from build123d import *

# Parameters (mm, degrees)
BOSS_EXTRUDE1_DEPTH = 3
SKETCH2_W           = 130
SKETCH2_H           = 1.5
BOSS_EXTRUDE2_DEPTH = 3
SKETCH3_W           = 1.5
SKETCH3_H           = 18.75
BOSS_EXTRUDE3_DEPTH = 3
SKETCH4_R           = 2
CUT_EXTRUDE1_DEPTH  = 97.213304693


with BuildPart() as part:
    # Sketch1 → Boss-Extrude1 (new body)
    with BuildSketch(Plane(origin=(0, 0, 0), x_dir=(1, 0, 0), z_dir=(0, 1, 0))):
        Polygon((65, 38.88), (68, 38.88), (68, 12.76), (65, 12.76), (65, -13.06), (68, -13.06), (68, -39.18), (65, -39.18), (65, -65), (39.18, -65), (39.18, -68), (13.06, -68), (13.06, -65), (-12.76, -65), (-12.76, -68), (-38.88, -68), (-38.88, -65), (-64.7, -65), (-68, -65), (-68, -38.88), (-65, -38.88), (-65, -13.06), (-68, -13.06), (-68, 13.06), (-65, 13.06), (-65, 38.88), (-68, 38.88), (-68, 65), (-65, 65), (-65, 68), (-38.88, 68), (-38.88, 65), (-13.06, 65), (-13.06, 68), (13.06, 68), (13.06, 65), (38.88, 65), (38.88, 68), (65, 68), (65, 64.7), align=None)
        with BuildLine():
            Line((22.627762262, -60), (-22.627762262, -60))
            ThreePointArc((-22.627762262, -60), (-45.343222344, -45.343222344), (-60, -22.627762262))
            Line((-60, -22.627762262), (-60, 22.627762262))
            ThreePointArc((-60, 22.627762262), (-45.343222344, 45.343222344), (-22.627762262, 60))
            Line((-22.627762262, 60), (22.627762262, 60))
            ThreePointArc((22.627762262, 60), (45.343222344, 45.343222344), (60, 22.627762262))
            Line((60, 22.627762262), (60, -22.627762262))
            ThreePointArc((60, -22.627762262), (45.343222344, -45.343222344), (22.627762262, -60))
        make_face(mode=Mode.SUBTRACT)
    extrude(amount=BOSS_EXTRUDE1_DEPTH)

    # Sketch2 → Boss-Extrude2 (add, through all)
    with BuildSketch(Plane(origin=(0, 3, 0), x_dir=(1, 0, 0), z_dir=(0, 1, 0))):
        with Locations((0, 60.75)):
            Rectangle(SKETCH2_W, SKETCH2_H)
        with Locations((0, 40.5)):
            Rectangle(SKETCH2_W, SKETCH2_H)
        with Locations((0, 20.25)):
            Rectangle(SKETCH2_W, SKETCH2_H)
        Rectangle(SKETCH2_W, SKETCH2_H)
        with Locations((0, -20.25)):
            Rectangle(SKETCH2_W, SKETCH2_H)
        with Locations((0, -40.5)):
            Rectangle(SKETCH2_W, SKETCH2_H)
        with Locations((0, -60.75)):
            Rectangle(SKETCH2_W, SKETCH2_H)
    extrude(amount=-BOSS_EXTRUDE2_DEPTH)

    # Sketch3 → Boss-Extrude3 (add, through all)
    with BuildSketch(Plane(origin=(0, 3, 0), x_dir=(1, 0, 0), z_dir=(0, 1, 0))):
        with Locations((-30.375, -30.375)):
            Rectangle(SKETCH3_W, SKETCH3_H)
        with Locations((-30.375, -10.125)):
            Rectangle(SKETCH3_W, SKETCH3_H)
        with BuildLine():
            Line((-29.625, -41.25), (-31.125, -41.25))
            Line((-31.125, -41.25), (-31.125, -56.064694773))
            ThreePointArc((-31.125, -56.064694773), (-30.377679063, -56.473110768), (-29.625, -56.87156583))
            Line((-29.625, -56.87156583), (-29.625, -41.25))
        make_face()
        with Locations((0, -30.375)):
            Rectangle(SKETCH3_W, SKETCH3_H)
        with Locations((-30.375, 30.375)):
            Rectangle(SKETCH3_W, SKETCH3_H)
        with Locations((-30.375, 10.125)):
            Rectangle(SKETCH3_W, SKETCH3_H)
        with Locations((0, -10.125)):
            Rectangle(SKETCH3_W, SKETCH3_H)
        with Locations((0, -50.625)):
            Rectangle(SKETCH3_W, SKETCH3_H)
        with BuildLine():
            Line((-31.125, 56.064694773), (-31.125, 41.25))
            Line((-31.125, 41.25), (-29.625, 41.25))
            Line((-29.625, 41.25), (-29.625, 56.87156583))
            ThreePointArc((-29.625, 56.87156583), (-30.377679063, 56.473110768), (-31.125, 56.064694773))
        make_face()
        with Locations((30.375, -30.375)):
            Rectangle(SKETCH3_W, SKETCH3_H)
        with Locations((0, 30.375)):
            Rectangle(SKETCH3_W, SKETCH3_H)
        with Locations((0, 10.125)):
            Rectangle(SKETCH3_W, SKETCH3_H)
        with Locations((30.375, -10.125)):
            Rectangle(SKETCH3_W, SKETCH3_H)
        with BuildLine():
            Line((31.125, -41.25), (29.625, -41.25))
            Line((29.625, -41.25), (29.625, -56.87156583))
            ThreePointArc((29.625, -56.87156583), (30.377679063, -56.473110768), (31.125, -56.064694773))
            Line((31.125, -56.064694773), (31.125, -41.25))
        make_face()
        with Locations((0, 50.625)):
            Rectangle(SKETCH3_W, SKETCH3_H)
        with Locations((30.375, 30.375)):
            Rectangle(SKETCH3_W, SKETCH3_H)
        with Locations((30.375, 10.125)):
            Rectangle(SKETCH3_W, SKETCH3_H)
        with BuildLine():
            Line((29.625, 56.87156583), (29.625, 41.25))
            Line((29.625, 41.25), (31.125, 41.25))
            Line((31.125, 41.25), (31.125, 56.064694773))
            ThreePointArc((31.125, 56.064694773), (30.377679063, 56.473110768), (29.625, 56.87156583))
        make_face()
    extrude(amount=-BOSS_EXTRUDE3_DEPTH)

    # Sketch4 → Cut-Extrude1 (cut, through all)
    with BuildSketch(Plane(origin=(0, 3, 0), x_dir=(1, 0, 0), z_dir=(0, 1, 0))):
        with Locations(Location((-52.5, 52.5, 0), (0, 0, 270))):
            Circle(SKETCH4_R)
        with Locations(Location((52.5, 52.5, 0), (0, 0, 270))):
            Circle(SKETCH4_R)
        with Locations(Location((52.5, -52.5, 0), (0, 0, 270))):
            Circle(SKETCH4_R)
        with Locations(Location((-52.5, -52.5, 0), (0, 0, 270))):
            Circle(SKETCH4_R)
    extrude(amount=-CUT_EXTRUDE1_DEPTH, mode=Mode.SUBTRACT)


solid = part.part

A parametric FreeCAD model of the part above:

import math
import FreeCAD as App
import Part
import Sketcher

V = App.Vector
Q = App.Units.Quantity


def add_polygon(sketch, points):
    """Adds a closed chain of lines whose ends are joined by coincident constraints."""
    first, n = sketch.GeometryCount, len(points)
    for a, b in zip(points, points[1:] + points[:1]):
        sketch.addGeometry(Part.LineSegment(App.Vector(*a, 0), App.Vector(*b, 0)), False)
    for i in range(n):
        sketch.addConstraint(Sketcher.Constraint("Coincident", first + i, 2, first + (i + 1) % n, 1))

doc = App.newDocument("Part")
body = doc.addObject("PartDesign::Body", "Body")

# Sketch on XZ plane
sketch1 = body.newObject("Sketcher::SketchObject", "Sketch")
sketch1.AttachmentSupport = (doc.getObject("XZ_Plane"), [""])
sketch1.MapMode = "FlatFace"
add_polygon(sketch1, [(68, -38.9), (65, -38.9), (65, -68), (38.9, -68), (38.9, -65), (13.1, -65), (13.1, -68), (-13.1, -68), (-13.1, -65), (-38.9, -65), (-38.9, -68), (-65, -68), (-65, -65), (-68, -65), (-68, -38.9), (-65, -38.9), (-65, -13.1), (-68, -13.1), (-68, 13.1), (-65, 13.1), (-65, 38.9), (-68, 38.9), (-68, 65), (-38.9, 65), (-38.9, 68), (-12.8, 68), (-12.8, 65), (13.1, 65), (13.1, 68), (39.2, 68), (39.2, 65), (65, 65), (65, 39.2), (68, 39.2), (68, 13.1), (65, 13.1), (65, -12.8), (68, -12.8)])  # lines 0-37
sketch1.addGeometry(Part.LineSegment(V(22.6, 60, 0), V(-22.6, 60, 0)), False)  # 38
sketch1.addGeometry(Part.ArcOfCircle(Part.Circle(V(0, 0, 0), V(0, 0, 1), 64.1), math.radians(111), math.radians(159)), False)  # 39
sketch1.addGeometry(Part.LineSegment(V(-60, 22.6, 0), V(-60, -22.6, 0)), False)  # 40
sketch1.addGeometry(Part.ArcOfCircle(Part.Circle(V(0, 0, 0), V(0, 0, 1), 64.1), math.radians(-159), math.radians(-111)), False)  # 41
sketch1.addGeometry(Part.LineSegment(V(-22.6, -60, 0), V(22.6, -60, 0)), False)  # 42
sketch1.addGeometry(Part.ArcOfCircle(Part.Circle(V(0, 0, 0), V(0, 0, 1), 64.1), math.radians(-69), math.radians(-21)), False)  # 43
sketch1.addGeometry(Part.LineSegment(V(60, -22.6, 0), V(60, 22.6, 0)), False)  # 44
sketch1.addGeometry(Part.ArcOfCircle(Part.Circle(V(0, 0, 0), V(0, 0, 1), 64.1), math.radians(21), math.radians(69)), False)  # 45
sketch1.addConstraint([
    Sketcher.Constraint("Coincident", 38, 2, 39, 1),
    Sketcher.Constraint("Coincident", 39, 2, 40, 1),
    Sketcher.Constraint("Coincident", 40, 2, 41, 1),
    Sketcher.Constraint("Coincident", 41, 2, 42, 1),
    Sketcher.Constraint("Coincident", 42, 2, 43, 1),
    Sketcher.Constraint("Coincident", 43, 2, 44, 1),
    Sketcher.Constraint("Coincident", 44, 2, 45, 1),
    Sketcher.Constraint("Coincident", 45, 2, 38, 1),
    Sketcher.Constraint("Horizontal", 0),
    Sketcher.Constraint("Vertical", 1),
    Sketcher.Constraint("Horizontal", 2),
    Sketcher.Constraint("Vertical", 3),
    Sketcher.Constraint("Horizontal", 4),
    Sketcher.Constraint("Vertical", 5),
    Sketcher.Constraint("Horizontal", 6),
    Sketcher.Constraint("Vertical", 7),
    Sketcher.Constraint("Horizontal", 8),
    Sketcher.Constraint("Vertical", 9),
    Sketcher.Constraint("Horizontal", 10),
    Sketcher.Constraint("Vertical", 11),
    Sketcher.Constraint("Horizontal", 12),
    Sketcher.Constraint("Vertical", 13),
    Sketcher.Constraint("Horizontal", 14),
    Sketcher.Constraint("Vertical", 15),
    Sketcher.Constraint("Horizontal", 16),
    Sketcher.Constraint("Vertical", 17),
    Sketcher.Constraint("Horizontal", 18),
    Sketcher.Constraint("Vertical", 19),
    Sketcher.Constraint("Horizontal", 20),
    Sketcher.Constraint("Vertical", 21),
    Sketcher.Constraint("Horizontal", 22),
    Sketcher.Constraint("Vertical", 23),
    Sketcher.Constraint("Horizontal", 24),
    Sketcher.Constraint("Vertical", 25),
    Sketcher.Constraint("Horizontal", 26),
    Sketcher.Constraint("Vertical", 27),
    Sketcher.Constraint("Horizontal", 28),
    Sketcher.Constraint("Vertical", 29),
    Sketcher.Constraint("Horizontal", 30),
    Sketcher.Constraint("Vertical", 31),
    Sketcher.Constraint("Horizontal", 32),
    Sketcher.Constraint("Vertical", 33),
    Sketcher.Constraint("Horizontal", 34),
    Sketcher.Constraint("Vertical", 35),
    Sketcher.Constraint("Horizontal", 36),
    Sketcher.Constraint("Vertical", 37),
    Sketcher.Constraint("Horizontal", 38),
    Sketcher.Constraint("Vertical", 40),
    Sketcher.Constraint("Horizontal", 42),
    Sketcher.Constraint("Vertical", 44),
    Sketcher.Constraint("Coincident", 39, 3, -1, 1),
    Sketcher.Constraint("Coincident", 41, 3, -1, 1),
    Sketcher.Constraint("Coincident", 43, 3, -1, 1),
    Sketcher.Constraint("Coincident", 45, 3, -1, 1),
    Sketcher.Constraint("Equal", 39, 41),
    Sketcher.Constraint("Equal", 41, 43),
    Sketcher.Constraint("Equal", 43, 45),
    Sketcher.Constraint("Symmetric", 0, 2, 19, 2, -1, 1),
    Sketcher.Constraint("Symmetric", 3, 2, 22, 2, -1, 1),
    Sketcher.Constraint("Symmetric", 7, 2, 26, 2, -1, 1),
    Sketcher.Constraint("Symmetric", 11, 2, 30, 2, -1, 1),
    Sketcher.Constraint("Symmetric", 16, 2, 33, 2, -1, 1),
    Sketcher.Constraint("Symmetric", 4, 2, 7, 2, -2),
    Sketcher.Constraint("Symmetric", 2, 2, 9, 2, -2),
    Sketcher.Constraint("Symmetric", 0, 2, 14, 2, -2),
    Sketcher.Constraint("Symmetric", 18, 2, 34, 2, -2),
    Sketcher.Constraint("Symmetric", 12, 2, 21, 2, -1),
    Sketcher.Constraint("Horizontal", 2, 2, 5, 2),
    Sketcher.Constraint("Horizontal", 24, 2, 27, 2),
    Sketcher.Constraint("Horizontal", 40, 2, 43, 2),
    Sketcher.Constraint("Vertical", 11, 2, 14, 2),
    Sketcher.Constraint("Vertical", 13, 2, 16, 2),
    Sketcher.Constraint("Vertical", 33, 2, 36, 2),
    Sketcher.Constraint("Vertical", 38, 2, 41, 2),
    Sketcher.Constraint("Equal", 2, 6),
    Sketcher.Constraint("Equal", 10, 24),
    Sketcher.Constraint("Equal", 24, 28),
    Sketcher.Constraint("Equal", 22, 1),
    Sketcher.Constraint("Equal", 36, 3),
    Sketcher.Constraint("Equal", 30, 15),
    Sketcher.Constraint("Equal", 13, 17),
    Sketcher.Constraint("Equal", 11, 23),
    Sketcher.Constraint("Equal", 19, 31),
    Sketcher.Constraint("Equal", 31, 35),
    Sketcher.Constraint("Equal", 42, 40),
    Sketcher.Constraint("DistanceX", 0, 2, 0, 1, Q("3 mm")),
    Sketcher.Constraint("DistanceX", -1, 1, 0, 2, Q("65 mm")),
    Sketcher.Constraint("DistanceY", -1, 1, 38, 2, Q("60 mm")),
    Sketcher.Constraint("Radius", 39, Q("64.125 mm")),
    Sketcher.Constraint("DistanceX", 2, 2, 2, 1, Q("26.12 mm")),
])
pad1 = body.newObject("PartDesign::Pad", "Pad")
pad1.Profile = sketch1
pad1.Length = 3
pad1.Reversed = True

# Sketch on XZ plane
sketch2 = body.newObject("Sketcher::SketchObject", "Sketch001")
sketch2.AttachmentSupport = (doc.getObject("XZ_Plane"), [""])
sketch2.MapMode = "FlatFace"
sketch2.AttachmentOffset = App.Placement(V(0, 0, -3), App.Rotation())
add_polygon(sketch2, [(-65, -61.5), (-65, -60), (65, -60), (65, -61.5)])  # lines 0-3
add_polygon(sketch2, [(-65, -41.2), (-65, -39.8), (65, -39.8), (65, -41.2)])  # lines 4-7
add_polygon(sketch2, [(-65, -21), (-65, -19.5), (65, -19.5), (65, -21)])  # lines 8-11
add_polygon(sketch2, [(-65, -0.8), (-65, 0.8), (65, 0.8), (65, -0.8)])  # lines 12-15
add_polygon(sketch2, [(-65, 19.5), (-65, 21), (65, 21), (65, 19.5)])  # lines 16-19
add_polygon(sketch2, [(-65, 39.8), (-65, 41.2), (65, 41.2), (65, 39.8)])  # lines 20-23
add_polygon(sketch2, [(-65, 60), (-65, 61.5), (65, 61.5), (65, 60)])  # lines 24-27
sketch2.addConstraint([
    Sketcher.Constraint("Vertical", 0),
    Sketcher.Constraint("Horizontal", 1),
    Sketcher.Constraint("Vertical", 2),
    Sketcher.Constraint("Horizontal", 3),
    Sketcher.Constraint("Vertical", 4),
    Sketcher.Constraint("Horizontal", 5),
    Sketcher.Constraint("Vertical", 6),
    Sketcher.Constraint("Horizontal", 7),
    Sketcher.Constraint("Vertical", 8),
    Sketcher.Constraint("Horizontal", 9),
    Sketcher.Constraint("Vertical", 10),
    Sketcher.Constraint("Horizontal", 11),
    Sketcher.Constraint("Vertical", 12),
    Sketcher.Constraint("Horizontal", 13),
    Sketcher.Constraint("Vertical", 14),
    Sketcher.Constraint("Horizontal", 15),
    Sketcher.Constraint("Vertical", 16),
    Sketcher.Constraint("Horizontal", 17),
    Sketcher.Constraint("Vertical", 18),
    Sketcher.Constraint("Horizontal", 19),
    Sketcher.Constraint("Vertical", 20),
    Sketcher.Constraint("Horizontal", 21),
    Sketcher.Constraint("Vertical", 22),
    Sketcher.Constraint("Horizontal", 23),
    Sketcher.Constraint("Vertical", 24),
    Sketcher.Constraint("Horizontal", 25),
    Sketcher.Constraint("Vertical", 26),
    Sketcher.Constraint("Horizontal", 27),
    Sketcher.Constraint("Symmetric", 12, 2, 14, 2, -1, 1),
    Sketcher.Constraint("Symmetric", 10, 2, 16, 2, -1, 1),
    Sketcher.Constraint("Symmetric", 8, 2, 18, 2, -1, 1),
    Sketcher.Constraint("Symmetric", 6, 2, 20, 2, -1, 1),
    Sketcher.Constraint("Symmetric", 4, 2, 22, 2, -1, 1),
    Sketcher.Constraint("Symmetric", 2, 2, 24, 2, -1, 1),
    Sketcher.Constraint("Symmetric", 0, 2, 26, 2, -1, 1),
    Sketcher.Constraint("Vertical", 3, 2, 4, 2),
    Sketcher.Constraint("Vertical", 2, 2, 5, 2),
    Sketcher.Constraint("Vertical", 7, 2, 8, 2),
    Sketcher.Constraint("Vertical", 6, 2, 9, 2),
    Sketcher.Constraint("Vertical", 11, 2, 12, 2),
    Sketcher.Constraint("Vertical", 10, 2, 13, 2),
    Sketcher.Constraint("Equal", 2, 4),
    Sketcher.Constraint("Equal", 6, 8),
    Sketcher.Constraint("Equal", 10, 12),
    Sketcher.Constraint("DistanceX", 1, 1, 1, 2, Q("130 mm")),
    Sketcher.Constraint("DistanceY", 0, 1, 0, 2, Q("1.5 mm")),
    Sketcher.Constraint("DistanceY", 0, 2, -1, 1, Q("60 mm")),
    Sketcher.Constraint("DistanceY", 10, 2, -1, 1, Q("21 mm")),
    Sketcher.Constraint("DistanceY", 7, 2, 12, 2, Q("42 mm")),
])
pad2 = body.newObject("PartDesign::Pad", "Pad001")
pad2.Profile = sketch2
pad2.Length = 3

# Sketch on XZ plane
sketch3 = body.newObject("Sketcher::SketchObject", "Sketch002")
sketch3.AttachmentSupport = (doc.getObject("XZ_Plane"), [""])
sketch3.MapMode = "FlatFace"
sketch3.AttachmentOffset = App.Placement(V(0, 0, -3), App.Rotation())
add_polygon(sketch3, [(-31.1, 21), (-31.1, 39.8), (-29.6, 39.8), (-29.6, 21)])  # lines 0-3
add_polygon(sketch3, [(-31.1, 0.8), (-31.1, 19.5), (-29.6, 19.5), (-29.6, 0.8)])  # lines 4-7
sketch3.addGeometry(Part.LineSegment(V(-29.6, 41.2, 0), V(-31.1, 41.2, 0)), False)  # 8
sketch3.addGeometry(Part.LineSegment(V(-31.1, 41.2, 0), V(-31.1, 56.1, 0)), False)  # 9
sketch3.addGeometry(Part.ArcOfCircle(Part.Circle(V(0, 0, 0), V(0, 0, 1), 64.1), math.radians(117.52), math.radians(119.04)), False)  # 10
sketch3.addGeometry(Part.LineSegment(V(-29.6, 56.9, 0), V(-29.6, 41.2, 0)), False)  # 11
add_polygon(sketch3, [(-0.8, 21), (-0.8, 39.8), (0.8, 39.8), (0.8, 21)])  # lines 12-15
add_polygon(sketch3, [(-31.1, -39.8), (-31.1, -21), (-29.6, -21), (-29.6, -39.8)])  # lines 16-19
add_polygon(sketch3, [(-31.1, -19.5), (-31.1, -0.8), (-29.6, -0.8), (-29.6, -19.5)])  # lines 20-23
add_polygon(sketch3, [(-0.8, 0.8), (-0.8, 19.5), (0.8, 19.5), (0.8, 0.8)])  # lines 24-27
add_polygon(sketch3, [(-0.8, 41.2), (-0.8, 60), (0.8, 60), (0.8, 41.2)])  # lines 28-31
sketch3.addGeometry(Part.LineSegment(V(-31.1, -56.1, 0), V(-31.1, -41.2, 0)), False)  # 32
sketch3.addGeometry(Part.LineSegment(V(-31.1, -41.2, 0), V(-29.6, -41.2, 0)), False)  # 33
sketch3.addGeometry(Part.LineSegment(V(-29.6, -41.2, 0), V(-29.6, -56.9, 0)), False)  # 34
sketch3.addGeometry(Part.ArcOfCircle(Part.Circle(V(0, 0, 0), V(0, 0, 1), 64.1), math.radians(-119.04), math.radians(-117.52)), False)  # 35
add_polygon(sketch3, [(29.6, 21), (29.6, 39.8), (31.1, 39.8), (31.1, 21)])  # lines 36-39
add_polygon(sketch3, [(-0.8, -39.8), (-0.8, -21), (0.8, -21), (0.8, -39.8)])  # lines 40-43
add_polygon(sketch3, [(-0.8, -19.5), (-0.8, -0.8), (0.8, -0.8), (0.8, -19.5)])  # lines 44-47
add_polygon(sketch3, [(29.6, 0.8), (29.6, 19.5), (31.1, 19.5), (31.1, 0.8)])  # lines 48-51
sketch3.addGeometry(Part.LineSegment(V(31.1, 41.2, 0), V(29.6, 41.2, 0)), False)  # 52
sketch3.addGeometry(Part.LineSegment(V(29.6, 41.2, 0), V(29.6, 56.9, 0)), False)  # 53
sketch3.addGeometry(Part.ArcOfCircle(Part.Circle(V(0, 0, 0), V(0, 0, 1), 64.1), math.radians(60.96), math.radians(62.48)), False)  # 54
sketch3.addGeometry(Part.LineSegment(V(31.1, 56.1, 0), V(31.1, 41.2, 0)), False)  # 55
add_polygon(sketch3, [(-0.8, -60), (-0.8, -41.2), (0.8, -41.2), (0.8, -60)])  # lines 56-59
add_polygon(sketch3, [(29.6, -39.8), (29.6, -21), (31.1, -21), (31.1, -39.8)])  # lines 60-63
add_polygon(sketch3, [(29.6, -19.5), (29.6, -0.8), (31.1, -0.8), (31.1, -19.5)])  # lines 64-67
sketch3.addGeometry(Part.LineSegment(V(29.6, -56.9, 0), V(29.6, -41.2, 0)), False)  # 68
sketch3.addGeometry(Part.LineSegment(V(29.6, -41.2, 0), V(31.1, -41.2, 0)), False)  # 69
sketch3.addGeometry(Part.LineSegment(V(31.1, -41.2, 0), V(31.1, -56.1, 0)), False)  # 70
sketch3.addGeometry(Part.ArcOfCircle(Part.Circle(V(0, 0, 0), V(0, 0, 1), 64.1), math.radians(-62.48), math.radians(-60.96)), False)  # 71
sketch3.addConstraint([
    Sketcher.Constraint("Coincident", 8, 2, 9, 1),
    Sketcher.Constraint("Coincident", 9, 2, 10, 2),
    Sketcher.Constraint("Coincident", 10, 1, 11, 1),
    Sketcher.Constraint("Coincident", 11, 2, 8, 1),
    Sketcher.Constraint("Coincident", 32, 2, 33, 1),
    Sketcher.Constraint("Coincident", 33, 2, 34, 1),
    Sketcher.Constraint("Coincident", 34, 2, 35, 2),
    Sketcher.Constraint("Coincident", 35, 1, 32, 1),
    Sketcher.Constraint("Coincident", 52, 2, 53, 1),
    Sketcher.Constraint("Coincident", 53, 2, 54, 2),
    Sketcher.Constraint("Coincident", 54, 1, 55, 1),
    Sketcher.Constraint("Coincident", 55, 2, 52, 1),
    Sketcher.Constraint("Coincident", 68, 2, 69, 1),
    Sketcher.Constraint("Coincident", 69, 2, 70, 1),
    Sketcher.Constraint("Coincident", 70, 2, 71, 2),
    Sketcher.Constraint("Coincident", 71, 1, 68, 1),
    Sketcher.Constraint("Vertical", 0),
    Sketcher.Constraint("Horizontal", 1),
    Sketcher.Constraint("Vertical", 2),
    Sketcher.Constraint("Horizontal", 3),
    Sketcher.Constraint("Vertical", 4),
    Sketcher.Constraint("Horizontal", 5),
    Sketcher.Constraint("Vertical", 6),
    Sketcher.Constraint("Horizontal", 7),
    Sketcher.Constraint("Horizontal", 8),
    Sketcher.Constraint("Vertical", 9),
    Sketcher.Constraint("Vertical", 11),
    Sketcher.Constraint("Vertical", 12),
    Sketcher.Constraint("Horizontal", 13),
    Sketcher.Constraint("Vertical", 14),
    Sketcher.Constraint("Horizontal", 15),
    Sketcher.Constraint("Vertical", 16),
    Sketcher.Constraint("Horizontal", 17),
    Sketcher.Constraint("Vertical", 18),
    Sketcher.Constraint("Horizontal", 19),
    Sketcher.Constraint("Vertical", 20),
    Sketcher.Constraint("Horizontal", 21),
    Sketcher.Constraint("Vertical", 22),
    Sketcher.Constraint("Horizontal", 23),
    Sketcher.Constraint("Vertical", 24),
    Sketcher.Constraint("Horizontal", 25),
    Sketcher.Constraint("Vertical", 26),
    Sketcher.Constraint("Horizontal", 27),
    Sketcher.Constraint("Vertical", 28),
    Sketcher.Constraint("Horizontal", 29),
    Sketcher.Constraint("Vertical", 30),
    Sketcher.Constraint("Horizontal", 31),
    Sketcher.Constraint("Vertical", 32),
    Sketcher.Constraint("Horizontal", 33),
    Sketcher.Constraint("Vertical", 34),
    Sketcher.Constraint("Vertical", 36),
    Sketcher.Constraint("Horizontal", 37),
    Sketcher.Constraint("Vertical", 38),
    Sketcher.Constraint("Horizontal", 39),
    Sketcher.Constraint("Vertical", 40),
    Sketcher.Constraint("Horizontal", 41),
    Sketcher.Constraint("Vertical", 42),
    Sketcher.Constraint("Horizontal", 43),
    Sketcher.Constraint("Vertical", 44),
    Sketcher.Constraint("Horizontal", 45),
    Sketcher.Constraint("Vertical", 46),
    Sketcher.Constraint("Horizontal", 47),
    Sketcher.Constraint("Vertical", 48),
    Sketcher.Constraint("Horizontal", 49),
    Sketcher.Constraint("Vertical", 50),
    Sketcher.Constraint("Horizontal", 51),
    Sketcher.Constraint("Horizontal", 52),
    Sketcher.Constraint("Vertical", 53),
    Sketcher.Constraint("Vertical", 55),
    Sketcher.Constraint("Vertical", 56),
    Sketcher.Constraint("Horizontal", 57),
    Sketcher.Constraint("Vertical", 58),
    Sketcher.Constraint("Horizontal", 59),
    Sketcher.Constraint("Vertical", 60),
    Sketcher.Constraint("Horizontal", 61),
    Sketcher.Constraint("Vertical", 62),
    Sketcher.Constraint("Horizontal", 63),
    Sketcher.Constraint("Vertical", 64),
    Sketcher.Constraint("Horizontal", 65),
    Sketcher.Constraint("Vertical", 66),
    Sketcher.Constraint("Horizontal", 67),
    Sketcher.Constraint("Vertical", 68),
    Sketcher.Constraint("Horizontal", 69),
    Sketcher.Constraint("Vertical", 70),
    Sketcher.Constraint("Coincident", 10, 3, -1, 1),
    Sketcher.Constraint("Coincident", 35, 3, -1, 1),
    Sketcher.Constraint("Coincident", 54, 3, -1, 1),
    Sketcher.Constraint("Coincident", 71, 3, -1, 1),
    Sketcher.Constraint("Equal", 10, 35),
    Sketcher.Constraint("Equal", 35, 54),
    Sketcher.Constraint("Equal", 54, 71),
    Sketcher.Constraint("Symmetric", 18, 2, 36, 2, -1, 1),
    Sketcher.Constraint("Symmetric", 16, 2, 38, 2, -1, 1),
    Sketcher.Constraint("Symmetric", 14, 2, 40, 2, -1, 1),
    Sketcher.Constraint("Symmetric", 12, 2, 42, 2, -1, 1),
    Sketcher.Constraint("Symmetric", 26, 2, 44, 2, -1, 1),
    Sketcher.Constraint("Symmetric", 24, 2, 46, 2, -1, 1),
    Sketcher.Constraint("Symmetric", 22, 2, 48, 2, -1, 1),
    Sketcher.Constraint("Symmetric", 20, 2, 50, 2, -1, 1),
    Sketcher.Constraint("Symmetric", 33, 2, 52, 2, -1, 1),
    Sketcher.Constraint("Symmetric", 30, 2, 56, 2, -1, 1),
    Sketcher.Constraint("Symmetric", 28, 2, 58, 2, -1, 1),
    Sketcher.Constraint("Symmetric", 2, 2, 60, 2, -1, 1),
    Sketcher.Constraint("Symmetric", 0, 2, 62, 2, -1, 1),
    Sketcher.Constraint("Symmetric", 6, 2, 64, 2, -1, 1),
    Sketcher.Constraint("Symmetric", 4, 2, 66, 2, -1, 1),
    Sketcher.Constraint("Symmetric", 11, 2, 68, 2, -1, 1),
    Sketcher.Constraint("Symmetric", 1, 2, 36, 2, -2),
    Sketcher.Constraint("Symmetric", 3, 2, 38, 2, -2),
    Sketcher.Constraint("Symmetric", 5, 2, 48, 2, -2),
    Sketcher.Constraint("Symmetric", 7, 2, 50, 2, -2),
    Sketcher.Constraint("Symmetric", 11, 2, 52, 2, -2),
    Sketcher.Constraint("Horizontal", 1, 2, 12, 2),
    Sketcher.Constraint("Horizontal", 3, 2, 14, 2),
    Sketcher.Constraint("Horizontal", 5, 2, 24, 2),
    Sketcher.Constraint("Horizontal", 7, 2, 26, 2),
    Sketcher.Constraint("Horizontal", 11, 2, 30, 2),
    Sketcher.Constraint("Horizontal", 9, 2, 54, 1),
    Sketcher.Constraint("Horizontal", 35, 1, 70, 2),
    Sketcher.Constraint("Vertical", 3, 2, 4, 2),
    Sketcher.Constraint("Vertical", 2, 2, 5, 2),
    Sketcher.Constraint("Vertical", 7, 2, 8, 2),
    Sketcher.Constraint("Vertical", 6, 2, 10, 1),
    Sketcher.Constraint("Vertical", 15, 2, 24, 2),
    Sketcher.Constraint("Vertical", 14, 2, 25, 2),
    Sketcher.Constraint("Vertical", 27, 2, 28, 2),
    Sketcher.Constraint("Vertical", 26, 2, 29, 2),
    Sketcher.Constraint("Vertical", 23, 2, 32, 2),
    Sketcher.Constraint("Vertical", 31, 2, 40, 2),
    Sketcher.Constraint("Equal", 8, 13),
    Sketcher.Constraint("Equal", 2, 4),
    Sketcher.Constraint("Equal", 26, 28),
    Sketcher.Constraint("DistanceX", 1, 1, 1, 2, Q("1.5 mm")),
    Sketcher.Constraint("DistanceY", -1, 1, 2, 2, Q("21 mm")),
    Sketcher.Constraint("DistanceY", -1, 1, 28, 2, Q("60 mm")),
    Sketcher.Constraint("DistanceY", 0, 1, 0, 2, Q("18.75 mm")),
    Sketcher.Constraint("DistanceY", -1, 1, 4, 2, Q("19.5 mm")),
    Sketcher.Constraint("Radius", 10, Q("64.124991 mm")),
    Sketcher.Constraint("DistanceX", 0, 2, -1, 1, Q("31.125 mm")),
])
pad3 = body.newObject("PartDesign::Pad", "Pad002")
pad3.Profile = sketch3
pad3.Type = "UpToLast"

# Sketch on XZ plane
sketch4 = body.newObject("Sketcher::SketchObject", "Sketch003")
sketch4.AttachmentSupport = (doc.getObject("XZ_Plane"), [""])
sketch4.MapMode = "FlatFace"
sketch4.AttachmentOffset = App.Placement(V(0, 0, -3), App.Rotation())
sketch4.addGeometry([
    Part.Circle(V(-52.5, -52.5, 0), V(0, 0, 1), 2),
    Part.Circle(V(52.5, -52.5, 0), V(0, 0, 1), 2),
    Part.Circle(V(52.5, 52.5, 0), V(0, 0, 1), 2),
    Part.Circle(V(-52.5, 52.5, 0), V(0, 0, 1), 2),
], False)
sketch4.addConstraint([
    Sketcher.Constraint("Equal", 0, 1),
    Sketcher.Constraint("Equal", 1, 2),
    Sketcher.Constraint("Equal", 2, 3),
    Sketcher.Constraint("Symmetric", 0, 3, 2, 3, -1, 1),
    Sketcher.Constraint("Symmetric", 1, 3, 3, 3, -1, 1),
    Sketcher.Constraint("Symmetric", 0, 3, 1, 3, -2),
    Sketcher.Constraint("Diameter", 0, Q("4 mm")),
    Sketcher.Constraint("DistanceX", 0, 3, 1, 3, Q("105 mm")),
    Sketcher.Constraint("DistanceY", 1, 3, 2, 3, Q("105 mm")),
])
pocket1 = body.newObject("PartDesign::Pocket", "Pocket")
pocket1.Profile = sketch4
pocket1.Type = "ThroughAll"
pocket1.Reversed = True

doc.recompute()
